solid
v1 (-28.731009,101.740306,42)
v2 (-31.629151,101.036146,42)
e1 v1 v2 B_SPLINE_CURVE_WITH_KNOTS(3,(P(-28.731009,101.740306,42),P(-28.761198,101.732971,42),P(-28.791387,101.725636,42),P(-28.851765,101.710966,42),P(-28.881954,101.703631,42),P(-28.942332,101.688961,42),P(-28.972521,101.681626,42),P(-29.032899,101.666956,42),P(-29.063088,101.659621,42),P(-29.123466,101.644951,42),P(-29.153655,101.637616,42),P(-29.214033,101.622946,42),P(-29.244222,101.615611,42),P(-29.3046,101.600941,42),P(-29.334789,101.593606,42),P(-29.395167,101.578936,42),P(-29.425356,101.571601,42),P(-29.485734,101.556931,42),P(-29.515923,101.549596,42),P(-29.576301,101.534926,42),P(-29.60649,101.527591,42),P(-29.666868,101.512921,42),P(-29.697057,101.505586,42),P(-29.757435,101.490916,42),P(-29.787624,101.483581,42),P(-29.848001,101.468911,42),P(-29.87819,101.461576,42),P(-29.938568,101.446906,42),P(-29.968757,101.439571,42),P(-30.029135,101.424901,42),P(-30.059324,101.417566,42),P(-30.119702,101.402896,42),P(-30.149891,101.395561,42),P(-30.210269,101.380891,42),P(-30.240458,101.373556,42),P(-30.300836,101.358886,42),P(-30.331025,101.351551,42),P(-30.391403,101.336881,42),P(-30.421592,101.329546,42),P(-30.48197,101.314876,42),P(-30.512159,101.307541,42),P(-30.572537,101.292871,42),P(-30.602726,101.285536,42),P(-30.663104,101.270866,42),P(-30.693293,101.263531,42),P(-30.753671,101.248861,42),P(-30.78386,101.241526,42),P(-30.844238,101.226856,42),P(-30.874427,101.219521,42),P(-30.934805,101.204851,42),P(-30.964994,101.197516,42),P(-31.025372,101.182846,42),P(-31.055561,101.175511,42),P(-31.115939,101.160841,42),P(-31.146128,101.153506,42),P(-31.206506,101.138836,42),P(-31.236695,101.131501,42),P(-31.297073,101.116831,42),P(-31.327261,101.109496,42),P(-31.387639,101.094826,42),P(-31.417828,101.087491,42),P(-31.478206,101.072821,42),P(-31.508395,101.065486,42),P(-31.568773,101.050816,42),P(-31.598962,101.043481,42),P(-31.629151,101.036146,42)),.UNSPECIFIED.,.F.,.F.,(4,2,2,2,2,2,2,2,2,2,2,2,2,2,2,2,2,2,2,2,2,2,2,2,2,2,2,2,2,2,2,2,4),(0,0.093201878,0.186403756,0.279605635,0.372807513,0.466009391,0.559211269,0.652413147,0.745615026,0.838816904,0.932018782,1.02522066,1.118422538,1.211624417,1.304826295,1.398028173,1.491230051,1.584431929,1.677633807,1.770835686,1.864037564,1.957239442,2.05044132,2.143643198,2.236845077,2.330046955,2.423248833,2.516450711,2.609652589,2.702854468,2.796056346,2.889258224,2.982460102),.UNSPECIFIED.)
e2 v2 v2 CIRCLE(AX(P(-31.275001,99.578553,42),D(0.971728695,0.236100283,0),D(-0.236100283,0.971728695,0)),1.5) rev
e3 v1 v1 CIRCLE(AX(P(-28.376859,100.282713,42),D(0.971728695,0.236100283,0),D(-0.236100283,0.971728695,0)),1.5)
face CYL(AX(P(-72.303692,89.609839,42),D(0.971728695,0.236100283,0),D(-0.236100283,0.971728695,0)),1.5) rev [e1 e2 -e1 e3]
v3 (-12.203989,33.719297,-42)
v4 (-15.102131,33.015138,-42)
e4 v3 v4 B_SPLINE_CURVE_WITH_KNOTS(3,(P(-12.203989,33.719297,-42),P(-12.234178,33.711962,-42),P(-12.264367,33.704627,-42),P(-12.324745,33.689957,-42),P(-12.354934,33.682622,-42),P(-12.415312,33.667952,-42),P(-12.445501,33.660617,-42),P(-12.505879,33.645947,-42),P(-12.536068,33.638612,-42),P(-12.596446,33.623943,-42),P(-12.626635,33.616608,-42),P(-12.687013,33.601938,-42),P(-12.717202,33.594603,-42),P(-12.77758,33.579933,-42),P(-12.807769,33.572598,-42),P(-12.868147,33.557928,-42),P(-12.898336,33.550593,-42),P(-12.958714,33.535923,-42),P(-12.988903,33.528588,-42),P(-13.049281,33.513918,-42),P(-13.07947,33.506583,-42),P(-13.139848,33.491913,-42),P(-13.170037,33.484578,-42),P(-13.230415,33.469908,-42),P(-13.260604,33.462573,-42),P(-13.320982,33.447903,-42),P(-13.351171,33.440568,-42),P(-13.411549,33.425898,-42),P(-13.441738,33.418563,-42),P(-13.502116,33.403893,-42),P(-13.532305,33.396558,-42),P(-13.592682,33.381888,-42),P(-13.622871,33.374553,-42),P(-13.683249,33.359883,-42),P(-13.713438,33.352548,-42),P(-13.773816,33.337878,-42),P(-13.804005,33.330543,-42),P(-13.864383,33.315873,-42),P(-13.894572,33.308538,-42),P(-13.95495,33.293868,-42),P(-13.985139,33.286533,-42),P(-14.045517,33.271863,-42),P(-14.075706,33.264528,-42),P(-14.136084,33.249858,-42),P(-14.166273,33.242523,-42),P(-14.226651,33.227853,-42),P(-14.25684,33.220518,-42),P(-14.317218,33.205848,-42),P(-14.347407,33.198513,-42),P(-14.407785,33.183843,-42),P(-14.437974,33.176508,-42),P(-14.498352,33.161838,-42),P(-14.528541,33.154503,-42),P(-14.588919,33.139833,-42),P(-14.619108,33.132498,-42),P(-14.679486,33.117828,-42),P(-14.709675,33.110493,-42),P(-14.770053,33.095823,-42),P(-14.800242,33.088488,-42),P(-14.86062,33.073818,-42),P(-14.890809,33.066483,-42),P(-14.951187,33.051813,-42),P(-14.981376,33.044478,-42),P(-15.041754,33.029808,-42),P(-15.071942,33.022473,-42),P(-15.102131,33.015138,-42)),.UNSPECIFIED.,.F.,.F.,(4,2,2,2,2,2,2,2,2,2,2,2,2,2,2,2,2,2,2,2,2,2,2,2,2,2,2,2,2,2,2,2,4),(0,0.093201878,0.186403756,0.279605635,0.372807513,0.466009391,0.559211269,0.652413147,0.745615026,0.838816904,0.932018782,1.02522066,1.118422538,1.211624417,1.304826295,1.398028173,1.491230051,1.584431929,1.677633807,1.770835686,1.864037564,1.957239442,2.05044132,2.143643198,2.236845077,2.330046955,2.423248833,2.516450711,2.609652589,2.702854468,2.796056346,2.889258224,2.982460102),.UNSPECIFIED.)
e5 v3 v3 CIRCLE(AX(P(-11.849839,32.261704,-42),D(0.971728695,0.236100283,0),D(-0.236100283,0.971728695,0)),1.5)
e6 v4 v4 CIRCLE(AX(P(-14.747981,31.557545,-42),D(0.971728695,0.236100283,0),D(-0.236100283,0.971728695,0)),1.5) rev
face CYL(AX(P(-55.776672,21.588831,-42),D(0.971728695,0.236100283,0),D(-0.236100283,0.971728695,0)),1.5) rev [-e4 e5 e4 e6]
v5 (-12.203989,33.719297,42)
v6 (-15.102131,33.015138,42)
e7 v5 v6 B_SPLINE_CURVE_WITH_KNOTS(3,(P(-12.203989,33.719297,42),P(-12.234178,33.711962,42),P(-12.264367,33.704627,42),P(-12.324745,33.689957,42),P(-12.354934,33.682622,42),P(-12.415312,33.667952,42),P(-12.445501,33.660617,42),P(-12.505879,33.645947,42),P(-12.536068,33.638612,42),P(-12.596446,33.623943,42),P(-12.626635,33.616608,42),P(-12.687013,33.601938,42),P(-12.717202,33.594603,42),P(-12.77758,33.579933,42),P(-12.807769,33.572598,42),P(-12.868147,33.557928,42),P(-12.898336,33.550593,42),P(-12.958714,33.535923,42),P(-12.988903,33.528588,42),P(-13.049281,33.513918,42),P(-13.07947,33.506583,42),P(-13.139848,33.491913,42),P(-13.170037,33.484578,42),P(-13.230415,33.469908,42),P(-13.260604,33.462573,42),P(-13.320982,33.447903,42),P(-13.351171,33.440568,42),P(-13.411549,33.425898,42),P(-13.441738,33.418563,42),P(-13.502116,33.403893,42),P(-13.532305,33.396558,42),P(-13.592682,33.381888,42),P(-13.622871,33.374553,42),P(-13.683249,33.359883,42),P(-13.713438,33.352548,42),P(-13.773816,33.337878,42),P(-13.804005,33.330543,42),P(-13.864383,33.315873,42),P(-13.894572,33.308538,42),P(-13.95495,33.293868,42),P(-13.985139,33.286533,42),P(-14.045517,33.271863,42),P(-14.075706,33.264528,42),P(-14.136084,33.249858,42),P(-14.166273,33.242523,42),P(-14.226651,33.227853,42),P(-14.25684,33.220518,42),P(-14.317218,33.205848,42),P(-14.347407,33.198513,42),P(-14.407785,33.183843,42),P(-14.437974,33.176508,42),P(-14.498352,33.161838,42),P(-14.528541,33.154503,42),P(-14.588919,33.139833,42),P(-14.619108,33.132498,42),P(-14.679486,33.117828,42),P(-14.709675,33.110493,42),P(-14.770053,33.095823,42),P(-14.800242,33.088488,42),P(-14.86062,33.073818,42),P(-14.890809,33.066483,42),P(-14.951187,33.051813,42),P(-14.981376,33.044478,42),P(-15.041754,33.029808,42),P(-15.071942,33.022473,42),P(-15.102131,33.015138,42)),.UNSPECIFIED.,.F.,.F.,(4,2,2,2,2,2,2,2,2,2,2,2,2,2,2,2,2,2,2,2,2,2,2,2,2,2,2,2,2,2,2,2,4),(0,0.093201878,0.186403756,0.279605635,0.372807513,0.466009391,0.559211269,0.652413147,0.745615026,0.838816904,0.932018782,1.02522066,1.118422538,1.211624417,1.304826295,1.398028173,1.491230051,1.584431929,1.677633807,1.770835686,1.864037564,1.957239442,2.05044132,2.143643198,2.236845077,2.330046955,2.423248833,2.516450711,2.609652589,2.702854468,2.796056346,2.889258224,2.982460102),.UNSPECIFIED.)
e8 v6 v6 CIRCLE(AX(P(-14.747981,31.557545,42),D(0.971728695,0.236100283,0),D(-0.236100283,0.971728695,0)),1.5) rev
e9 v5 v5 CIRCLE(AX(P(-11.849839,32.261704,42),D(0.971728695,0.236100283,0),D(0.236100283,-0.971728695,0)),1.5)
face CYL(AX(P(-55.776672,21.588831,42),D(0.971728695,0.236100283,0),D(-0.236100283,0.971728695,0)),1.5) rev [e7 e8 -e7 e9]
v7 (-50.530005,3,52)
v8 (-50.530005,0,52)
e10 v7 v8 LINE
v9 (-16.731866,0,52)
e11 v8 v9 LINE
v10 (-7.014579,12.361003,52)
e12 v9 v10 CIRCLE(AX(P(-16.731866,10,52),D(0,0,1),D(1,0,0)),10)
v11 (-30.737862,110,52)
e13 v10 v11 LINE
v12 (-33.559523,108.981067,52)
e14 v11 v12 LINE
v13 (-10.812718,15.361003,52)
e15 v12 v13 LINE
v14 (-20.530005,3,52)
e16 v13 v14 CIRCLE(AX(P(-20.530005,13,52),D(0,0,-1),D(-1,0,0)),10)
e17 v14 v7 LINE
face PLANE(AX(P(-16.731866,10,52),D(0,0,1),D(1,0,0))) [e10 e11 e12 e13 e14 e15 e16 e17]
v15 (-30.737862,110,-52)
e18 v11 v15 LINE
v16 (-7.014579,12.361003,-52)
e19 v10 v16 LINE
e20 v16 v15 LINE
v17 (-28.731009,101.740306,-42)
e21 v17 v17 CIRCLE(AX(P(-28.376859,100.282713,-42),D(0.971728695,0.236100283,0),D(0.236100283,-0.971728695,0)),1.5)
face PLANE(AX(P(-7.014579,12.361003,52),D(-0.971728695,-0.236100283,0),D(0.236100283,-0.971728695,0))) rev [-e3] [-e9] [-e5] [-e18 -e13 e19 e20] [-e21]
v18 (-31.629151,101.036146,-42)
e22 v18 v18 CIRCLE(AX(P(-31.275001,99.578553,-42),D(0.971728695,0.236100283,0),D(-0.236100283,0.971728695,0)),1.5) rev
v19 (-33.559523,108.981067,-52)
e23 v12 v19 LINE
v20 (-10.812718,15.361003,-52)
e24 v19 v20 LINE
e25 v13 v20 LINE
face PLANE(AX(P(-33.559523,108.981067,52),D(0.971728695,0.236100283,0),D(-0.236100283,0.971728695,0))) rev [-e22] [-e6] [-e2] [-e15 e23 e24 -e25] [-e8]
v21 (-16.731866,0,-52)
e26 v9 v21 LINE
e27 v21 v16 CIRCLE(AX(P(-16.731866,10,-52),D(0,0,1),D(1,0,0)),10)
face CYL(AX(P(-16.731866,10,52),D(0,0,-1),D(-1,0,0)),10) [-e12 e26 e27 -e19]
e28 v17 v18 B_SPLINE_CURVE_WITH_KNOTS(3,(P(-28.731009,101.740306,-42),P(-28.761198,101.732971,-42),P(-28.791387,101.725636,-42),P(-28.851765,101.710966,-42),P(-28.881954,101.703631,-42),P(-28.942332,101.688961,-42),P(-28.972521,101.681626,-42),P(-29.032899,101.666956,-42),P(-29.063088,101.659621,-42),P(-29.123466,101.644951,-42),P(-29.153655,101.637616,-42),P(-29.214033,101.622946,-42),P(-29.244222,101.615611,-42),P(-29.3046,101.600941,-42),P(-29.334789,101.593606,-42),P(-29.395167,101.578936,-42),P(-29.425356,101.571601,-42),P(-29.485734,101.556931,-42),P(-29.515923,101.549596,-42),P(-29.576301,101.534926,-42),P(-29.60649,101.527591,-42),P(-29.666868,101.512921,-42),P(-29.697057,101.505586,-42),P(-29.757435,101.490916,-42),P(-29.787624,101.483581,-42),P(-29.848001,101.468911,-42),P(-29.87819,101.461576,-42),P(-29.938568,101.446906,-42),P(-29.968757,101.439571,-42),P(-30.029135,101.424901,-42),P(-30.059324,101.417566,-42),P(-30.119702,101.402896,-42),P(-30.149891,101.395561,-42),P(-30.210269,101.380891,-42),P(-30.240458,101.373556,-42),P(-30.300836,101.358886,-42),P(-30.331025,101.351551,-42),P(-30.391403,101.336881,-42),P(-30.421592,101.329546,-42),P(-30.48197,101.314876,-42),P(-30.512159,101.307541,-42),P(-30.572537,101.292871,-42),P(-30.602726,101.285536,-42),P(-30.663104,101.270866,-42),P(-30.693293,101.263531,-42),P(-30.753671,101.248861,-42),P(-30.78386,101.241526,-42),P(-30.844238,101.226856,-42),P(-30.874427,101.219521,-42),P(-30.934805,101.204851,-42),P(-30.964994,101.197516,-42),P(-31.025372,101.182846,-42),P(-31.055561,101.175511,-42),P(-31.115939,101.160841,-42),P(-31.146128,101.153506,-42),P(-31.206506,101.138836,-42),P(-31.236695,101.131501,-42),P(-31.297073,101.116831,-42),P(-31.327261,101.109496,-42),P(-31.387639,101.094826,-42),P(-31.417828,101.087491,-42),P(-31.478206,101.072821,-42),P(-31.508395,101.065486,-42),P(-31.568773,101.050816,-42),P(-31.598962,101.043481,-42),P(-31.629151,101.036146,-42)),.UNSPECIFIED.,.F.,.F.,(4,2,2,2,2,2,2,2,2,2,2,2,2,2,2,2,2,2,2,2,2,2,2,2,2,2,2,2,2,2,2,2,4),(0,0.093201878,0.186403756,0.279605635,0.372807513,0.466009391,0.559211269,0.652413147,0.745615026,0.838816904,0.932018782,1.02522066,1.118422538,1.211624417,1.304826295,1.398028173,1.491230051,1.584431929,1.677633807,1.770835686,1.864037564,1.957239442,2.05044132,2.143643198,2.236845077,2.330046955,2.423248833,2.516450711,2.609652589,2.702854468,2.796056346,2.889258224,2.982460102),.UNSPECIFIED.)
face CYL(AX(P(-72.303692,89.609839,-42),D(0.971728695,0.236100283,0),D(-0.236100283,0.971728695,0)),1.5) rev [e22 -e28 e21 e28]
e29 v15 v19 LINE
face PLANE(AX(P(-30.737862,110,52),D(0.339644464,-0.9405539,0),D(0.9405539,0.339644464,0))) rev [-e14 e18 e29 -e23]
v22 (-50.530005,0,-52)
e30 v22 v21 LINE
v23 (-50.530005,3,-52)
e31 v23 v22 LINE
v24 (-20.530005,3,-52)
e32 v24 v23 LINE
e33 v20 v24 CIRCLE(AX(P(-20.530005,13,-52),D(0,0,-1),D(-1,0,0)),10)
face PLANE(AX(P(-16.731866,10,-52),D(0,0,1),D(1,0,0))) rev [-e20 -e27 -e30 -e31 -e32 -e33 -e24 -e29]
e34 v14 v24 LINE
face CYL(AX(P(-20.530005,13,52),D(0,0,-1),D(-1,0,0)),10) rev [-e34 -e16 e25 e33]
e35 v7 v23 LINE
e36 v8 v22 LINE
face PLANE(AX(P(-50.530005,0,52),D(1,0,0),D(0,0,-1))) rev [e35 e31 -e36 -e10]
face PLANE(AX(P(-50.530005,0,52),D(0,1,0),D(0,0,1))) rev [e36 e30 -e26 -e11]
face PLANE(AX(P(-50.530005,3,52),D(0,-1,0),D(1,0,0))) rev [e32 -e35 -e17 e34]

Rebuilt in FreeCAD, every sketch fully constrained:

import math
import FreeCAD as App
import Part
import Sketcher

V = App.Vector

doc = App.newDocument("Part")
body = doc.addObject("PartDesign::Body", "Body")

sketch1 = body.newObject("Sketcher::SketchObject", "Sketch")
sketch1.AttachmentSupport = (doc.getObject("XY_Plane"), [""])
sketch1.MapMode = "FlatFace"
sketch1.addGeometry(Part.LineSegment(V(-50.530005, 3, 0), V(-50.530005, 0, 0)), False)
sketch1.addGeometry(Part.LineSegment(V(-50.530005, 0, 0), V(-16.731866, 0, 0)), False)
sketch1.addGeometry(Part.ArcOfCircle(Part.Circle(V(-16.731866, 10, 0), V(0, 0, 1), 10), math.radians(-90), math.radians(13.65649)), False)
sketch1.addGeometry(Part.LineSegment(V(-7.014579, 12.361003, 0), V(-30.737862, 110, 0)), False)
sketch1.addGeometry(Part.LineSegment(V(-30.737862, 110, 0), V(-33.559523, 108.981067, 0)), False)
sketch1.addGeometry(Part.LineSegment(V(-33.559523, 108.981067, 0), V(-10.812718, 15.361003, 0)), False)
sketch1.addGeometry(Part.ArcOfCircle(Part.Circle(V(-20.530005, 13, 0), V(0, 0, 1), 10), math.radians(-90), math.radians(13.65649)), False)
sketch1.addGeometry(Part.LineSegment(V(-20.530005, 3, 0), V(-50.530005, 3, 0)), False)
sketch1.addConstraint(Sketcher.Constraint("Coincident", 0, 2, 1, 1))
sketch1.addConstraint(Sketcher.Constraint("Tangent", 1, 2, 2, 1))
sketch1.addConstraint(Sketcher.Constraint("Tangent", 2, 2, 3, 1))
sketch1.addConstraint(Sketcher.Constraint("Coincident", 3, 2, 4, 1))
sketch1.addConstraint(Sketcher.Constraint("Coincident", 4, 2, 5, 1))
sketch1.addConstraint(Sketcher.Constraint("Tangent", 5, 2, 6, 2))
sketch1.addConstraint(Sketcher.Constraint("Tangent", 6, 1, 7, 1))
sketch1.addConstraint(Sketcher.Constraint("Coincident", 7, 2, 0, 1))
sketch1.addConstraint(Sketcher.Constraint("Vertical", 0))
sketch1.addConstraint(Sketcher.Constraint("Horizontal", 1))
sketch1.addConstraint(Sketcher.Constraint("Horizontal", 7))
sketch1.addConstraint(Sketcher.Constraint("Equal", 2, 6))
sketch1.addConstraint(Sketcher.Constraint("PointOnObject", 0, 2, -1))
sketch1.addConstraint(Sketcher.Constraint("Parallel", 3, 5))
sketch1.addConstraint(Sketcher.Constraint("Radius", 2, 10.0))
sketch1.addConstraint(Sketcher.Constraint("DistanceX", 7, 2, 7, 1, 30.0))
sketch1.addConstraint(Sketcher.Constraint("DistanceY", 0, 2, 0, 1, 3.0))
sketch1.addConstraint(Sketcher.Constraint("Distance", 4, 3.0))
sketch1.addConstraint(Sketcher.Constraint("DistanceY", -1, 1, 3, 2, 110.0))
sketch1.addConstraint(Sketcher.Constraint("DistanceX", 1, 1, 1, 2, 33.798139))
sketch1.addConstraint(Sketcher.Constraint("Distance", 3, 100.479689))
sketch1.addConstraint(Sketcher.Constraint("DistanceX", 2, 2, -1, 1, 7.014579))
pad1 = body.newObject("PartDesign::Pad", "Pad")
pad1.Profile = sketch1
pad1.Length = 104
pad1.Midplane = True

sketch2 = body.newObject("Sketcher::SketchObject", "Sketch001")
sketch2.Placement = App.Placement(V(-3.787634, -0.920279, 0), App.Rotation(V(0, 0, -1), V(-0.236100283, 0.971728695, 0), V(0.971728695, 0.236100283, 0), "ZXY"))
sketch2.addGeometry(Part.Circle(V(-42, 104.147374, 0), V(0, 0, 1), 1.5), False)
sketch2.addConstraint(Sketcher.Constraint("Diameter", 0, 3.0))
sketch2.addConstraint(Sketcher.Constraint("DistanceX", 0, 3, -1, 1, 42.0))
sketch2.addConstraint(Sketcher.Constraint("DistanceY", -1, 1, 0, 3, 104.147374))
pocket1 = body.newObject("PartDesign::Pocket", "Pocket")
pocket1.Profile = sketch2
pocket1.Type = "UpToFirst"

sketch3 = body.newObject("Sketcher::SketchObject", "Sketch002")
sketch3.Placement = App.Placement(V(-3.787634, -0.920279, 0), App.Rotation(V(0, 0, -1), V(-0.236100283, 0.971728695, 0), V(0.971728695, 0.236100283, 0), "ZXY"))
sketch3.addGeometry(Part.Circle(V(42, 104.147374, 0), V(0, 0, 1), 1.5), False)
sketch3.addConstraint(Sketcher.Constraint("Diameter", 0, 3.0))
sketch3.addConstraint(Sketcher.Constraint("DistanceX", -1, 1, 0, 3, 42.0))
sketch3.addConstraint(Sketcher.Constraint("DistanceY", -1, 1, 0, 3, 104.147374))
pocket2 = body.newObject("PartDesign::Pocket", "Pocket001")
pocket2.Profile = sketch3
pocket2.Type = "UpToFirst"

sketch4 = body.newObject("Sketcher::SketchObject", "Sketch003")
sketch4.Placement = App.Placement(V(-3.787634, -0.920279, 0), App.Rotation(V(0, 0, -1), V(-0.236100283, 0.971728695, 0), V(0.971728695, 0.236100283, 0), "ZXY"))
sketch4.addGeometry(Part.Circle(V(42, 34.147374, 0), V(0, 0, 1), 1.5), False)
sketch4.addConstraint(Sketcher.Constraint("Diameter", 0, 3.0))
sketch4.addConstraint(Sketcher.Constraint("DistanceX", -1, 1, 0, 3, 42.0))
sketch4.addConstraint(Sketcher.Constraint("DistanceY", -1, 1, 0, 3, 34.147374))
pocket3 = body.newObject("PartDesign::Pocket", "Pocket002")
pocket3.Profile = sketch4
pocket3.Type = "UpToFirst"

sketch5 = body.newObject("Sketcher::SketchObject", "Sketch004")
sketch5.Placement = App.Placement(V(-3.787634, -0.920279, 0), App.Rotation(V(0, 0, -1), V(-0.236100283, 0.971728695, 0), V(0.971728695, 0.236100283, 0), "ZXY"))
sketch5.addGeometry(Part.Circle(V(-42, 34.147374, 0), V(0, 0, 1), 1.5), False)
sketch5.addConstraint(Sketcher.Constraint("Diameter", 0, 3.0))
sketch5.addConstraint(Sketcher.Constraint("DistanceX", 0, 3, -1, 1, 42.0))
sketch5.addConstraint(Sketcher.Constraint("DistanceY", -1, 1, 0, 3, 34.147374))
pocket4 = body.newObject("PartDesign::Pocket", "Pocket003")
pocket4.Profile = sketch5
pocket4.Type = "UpToFirst"

doc.recompute()
